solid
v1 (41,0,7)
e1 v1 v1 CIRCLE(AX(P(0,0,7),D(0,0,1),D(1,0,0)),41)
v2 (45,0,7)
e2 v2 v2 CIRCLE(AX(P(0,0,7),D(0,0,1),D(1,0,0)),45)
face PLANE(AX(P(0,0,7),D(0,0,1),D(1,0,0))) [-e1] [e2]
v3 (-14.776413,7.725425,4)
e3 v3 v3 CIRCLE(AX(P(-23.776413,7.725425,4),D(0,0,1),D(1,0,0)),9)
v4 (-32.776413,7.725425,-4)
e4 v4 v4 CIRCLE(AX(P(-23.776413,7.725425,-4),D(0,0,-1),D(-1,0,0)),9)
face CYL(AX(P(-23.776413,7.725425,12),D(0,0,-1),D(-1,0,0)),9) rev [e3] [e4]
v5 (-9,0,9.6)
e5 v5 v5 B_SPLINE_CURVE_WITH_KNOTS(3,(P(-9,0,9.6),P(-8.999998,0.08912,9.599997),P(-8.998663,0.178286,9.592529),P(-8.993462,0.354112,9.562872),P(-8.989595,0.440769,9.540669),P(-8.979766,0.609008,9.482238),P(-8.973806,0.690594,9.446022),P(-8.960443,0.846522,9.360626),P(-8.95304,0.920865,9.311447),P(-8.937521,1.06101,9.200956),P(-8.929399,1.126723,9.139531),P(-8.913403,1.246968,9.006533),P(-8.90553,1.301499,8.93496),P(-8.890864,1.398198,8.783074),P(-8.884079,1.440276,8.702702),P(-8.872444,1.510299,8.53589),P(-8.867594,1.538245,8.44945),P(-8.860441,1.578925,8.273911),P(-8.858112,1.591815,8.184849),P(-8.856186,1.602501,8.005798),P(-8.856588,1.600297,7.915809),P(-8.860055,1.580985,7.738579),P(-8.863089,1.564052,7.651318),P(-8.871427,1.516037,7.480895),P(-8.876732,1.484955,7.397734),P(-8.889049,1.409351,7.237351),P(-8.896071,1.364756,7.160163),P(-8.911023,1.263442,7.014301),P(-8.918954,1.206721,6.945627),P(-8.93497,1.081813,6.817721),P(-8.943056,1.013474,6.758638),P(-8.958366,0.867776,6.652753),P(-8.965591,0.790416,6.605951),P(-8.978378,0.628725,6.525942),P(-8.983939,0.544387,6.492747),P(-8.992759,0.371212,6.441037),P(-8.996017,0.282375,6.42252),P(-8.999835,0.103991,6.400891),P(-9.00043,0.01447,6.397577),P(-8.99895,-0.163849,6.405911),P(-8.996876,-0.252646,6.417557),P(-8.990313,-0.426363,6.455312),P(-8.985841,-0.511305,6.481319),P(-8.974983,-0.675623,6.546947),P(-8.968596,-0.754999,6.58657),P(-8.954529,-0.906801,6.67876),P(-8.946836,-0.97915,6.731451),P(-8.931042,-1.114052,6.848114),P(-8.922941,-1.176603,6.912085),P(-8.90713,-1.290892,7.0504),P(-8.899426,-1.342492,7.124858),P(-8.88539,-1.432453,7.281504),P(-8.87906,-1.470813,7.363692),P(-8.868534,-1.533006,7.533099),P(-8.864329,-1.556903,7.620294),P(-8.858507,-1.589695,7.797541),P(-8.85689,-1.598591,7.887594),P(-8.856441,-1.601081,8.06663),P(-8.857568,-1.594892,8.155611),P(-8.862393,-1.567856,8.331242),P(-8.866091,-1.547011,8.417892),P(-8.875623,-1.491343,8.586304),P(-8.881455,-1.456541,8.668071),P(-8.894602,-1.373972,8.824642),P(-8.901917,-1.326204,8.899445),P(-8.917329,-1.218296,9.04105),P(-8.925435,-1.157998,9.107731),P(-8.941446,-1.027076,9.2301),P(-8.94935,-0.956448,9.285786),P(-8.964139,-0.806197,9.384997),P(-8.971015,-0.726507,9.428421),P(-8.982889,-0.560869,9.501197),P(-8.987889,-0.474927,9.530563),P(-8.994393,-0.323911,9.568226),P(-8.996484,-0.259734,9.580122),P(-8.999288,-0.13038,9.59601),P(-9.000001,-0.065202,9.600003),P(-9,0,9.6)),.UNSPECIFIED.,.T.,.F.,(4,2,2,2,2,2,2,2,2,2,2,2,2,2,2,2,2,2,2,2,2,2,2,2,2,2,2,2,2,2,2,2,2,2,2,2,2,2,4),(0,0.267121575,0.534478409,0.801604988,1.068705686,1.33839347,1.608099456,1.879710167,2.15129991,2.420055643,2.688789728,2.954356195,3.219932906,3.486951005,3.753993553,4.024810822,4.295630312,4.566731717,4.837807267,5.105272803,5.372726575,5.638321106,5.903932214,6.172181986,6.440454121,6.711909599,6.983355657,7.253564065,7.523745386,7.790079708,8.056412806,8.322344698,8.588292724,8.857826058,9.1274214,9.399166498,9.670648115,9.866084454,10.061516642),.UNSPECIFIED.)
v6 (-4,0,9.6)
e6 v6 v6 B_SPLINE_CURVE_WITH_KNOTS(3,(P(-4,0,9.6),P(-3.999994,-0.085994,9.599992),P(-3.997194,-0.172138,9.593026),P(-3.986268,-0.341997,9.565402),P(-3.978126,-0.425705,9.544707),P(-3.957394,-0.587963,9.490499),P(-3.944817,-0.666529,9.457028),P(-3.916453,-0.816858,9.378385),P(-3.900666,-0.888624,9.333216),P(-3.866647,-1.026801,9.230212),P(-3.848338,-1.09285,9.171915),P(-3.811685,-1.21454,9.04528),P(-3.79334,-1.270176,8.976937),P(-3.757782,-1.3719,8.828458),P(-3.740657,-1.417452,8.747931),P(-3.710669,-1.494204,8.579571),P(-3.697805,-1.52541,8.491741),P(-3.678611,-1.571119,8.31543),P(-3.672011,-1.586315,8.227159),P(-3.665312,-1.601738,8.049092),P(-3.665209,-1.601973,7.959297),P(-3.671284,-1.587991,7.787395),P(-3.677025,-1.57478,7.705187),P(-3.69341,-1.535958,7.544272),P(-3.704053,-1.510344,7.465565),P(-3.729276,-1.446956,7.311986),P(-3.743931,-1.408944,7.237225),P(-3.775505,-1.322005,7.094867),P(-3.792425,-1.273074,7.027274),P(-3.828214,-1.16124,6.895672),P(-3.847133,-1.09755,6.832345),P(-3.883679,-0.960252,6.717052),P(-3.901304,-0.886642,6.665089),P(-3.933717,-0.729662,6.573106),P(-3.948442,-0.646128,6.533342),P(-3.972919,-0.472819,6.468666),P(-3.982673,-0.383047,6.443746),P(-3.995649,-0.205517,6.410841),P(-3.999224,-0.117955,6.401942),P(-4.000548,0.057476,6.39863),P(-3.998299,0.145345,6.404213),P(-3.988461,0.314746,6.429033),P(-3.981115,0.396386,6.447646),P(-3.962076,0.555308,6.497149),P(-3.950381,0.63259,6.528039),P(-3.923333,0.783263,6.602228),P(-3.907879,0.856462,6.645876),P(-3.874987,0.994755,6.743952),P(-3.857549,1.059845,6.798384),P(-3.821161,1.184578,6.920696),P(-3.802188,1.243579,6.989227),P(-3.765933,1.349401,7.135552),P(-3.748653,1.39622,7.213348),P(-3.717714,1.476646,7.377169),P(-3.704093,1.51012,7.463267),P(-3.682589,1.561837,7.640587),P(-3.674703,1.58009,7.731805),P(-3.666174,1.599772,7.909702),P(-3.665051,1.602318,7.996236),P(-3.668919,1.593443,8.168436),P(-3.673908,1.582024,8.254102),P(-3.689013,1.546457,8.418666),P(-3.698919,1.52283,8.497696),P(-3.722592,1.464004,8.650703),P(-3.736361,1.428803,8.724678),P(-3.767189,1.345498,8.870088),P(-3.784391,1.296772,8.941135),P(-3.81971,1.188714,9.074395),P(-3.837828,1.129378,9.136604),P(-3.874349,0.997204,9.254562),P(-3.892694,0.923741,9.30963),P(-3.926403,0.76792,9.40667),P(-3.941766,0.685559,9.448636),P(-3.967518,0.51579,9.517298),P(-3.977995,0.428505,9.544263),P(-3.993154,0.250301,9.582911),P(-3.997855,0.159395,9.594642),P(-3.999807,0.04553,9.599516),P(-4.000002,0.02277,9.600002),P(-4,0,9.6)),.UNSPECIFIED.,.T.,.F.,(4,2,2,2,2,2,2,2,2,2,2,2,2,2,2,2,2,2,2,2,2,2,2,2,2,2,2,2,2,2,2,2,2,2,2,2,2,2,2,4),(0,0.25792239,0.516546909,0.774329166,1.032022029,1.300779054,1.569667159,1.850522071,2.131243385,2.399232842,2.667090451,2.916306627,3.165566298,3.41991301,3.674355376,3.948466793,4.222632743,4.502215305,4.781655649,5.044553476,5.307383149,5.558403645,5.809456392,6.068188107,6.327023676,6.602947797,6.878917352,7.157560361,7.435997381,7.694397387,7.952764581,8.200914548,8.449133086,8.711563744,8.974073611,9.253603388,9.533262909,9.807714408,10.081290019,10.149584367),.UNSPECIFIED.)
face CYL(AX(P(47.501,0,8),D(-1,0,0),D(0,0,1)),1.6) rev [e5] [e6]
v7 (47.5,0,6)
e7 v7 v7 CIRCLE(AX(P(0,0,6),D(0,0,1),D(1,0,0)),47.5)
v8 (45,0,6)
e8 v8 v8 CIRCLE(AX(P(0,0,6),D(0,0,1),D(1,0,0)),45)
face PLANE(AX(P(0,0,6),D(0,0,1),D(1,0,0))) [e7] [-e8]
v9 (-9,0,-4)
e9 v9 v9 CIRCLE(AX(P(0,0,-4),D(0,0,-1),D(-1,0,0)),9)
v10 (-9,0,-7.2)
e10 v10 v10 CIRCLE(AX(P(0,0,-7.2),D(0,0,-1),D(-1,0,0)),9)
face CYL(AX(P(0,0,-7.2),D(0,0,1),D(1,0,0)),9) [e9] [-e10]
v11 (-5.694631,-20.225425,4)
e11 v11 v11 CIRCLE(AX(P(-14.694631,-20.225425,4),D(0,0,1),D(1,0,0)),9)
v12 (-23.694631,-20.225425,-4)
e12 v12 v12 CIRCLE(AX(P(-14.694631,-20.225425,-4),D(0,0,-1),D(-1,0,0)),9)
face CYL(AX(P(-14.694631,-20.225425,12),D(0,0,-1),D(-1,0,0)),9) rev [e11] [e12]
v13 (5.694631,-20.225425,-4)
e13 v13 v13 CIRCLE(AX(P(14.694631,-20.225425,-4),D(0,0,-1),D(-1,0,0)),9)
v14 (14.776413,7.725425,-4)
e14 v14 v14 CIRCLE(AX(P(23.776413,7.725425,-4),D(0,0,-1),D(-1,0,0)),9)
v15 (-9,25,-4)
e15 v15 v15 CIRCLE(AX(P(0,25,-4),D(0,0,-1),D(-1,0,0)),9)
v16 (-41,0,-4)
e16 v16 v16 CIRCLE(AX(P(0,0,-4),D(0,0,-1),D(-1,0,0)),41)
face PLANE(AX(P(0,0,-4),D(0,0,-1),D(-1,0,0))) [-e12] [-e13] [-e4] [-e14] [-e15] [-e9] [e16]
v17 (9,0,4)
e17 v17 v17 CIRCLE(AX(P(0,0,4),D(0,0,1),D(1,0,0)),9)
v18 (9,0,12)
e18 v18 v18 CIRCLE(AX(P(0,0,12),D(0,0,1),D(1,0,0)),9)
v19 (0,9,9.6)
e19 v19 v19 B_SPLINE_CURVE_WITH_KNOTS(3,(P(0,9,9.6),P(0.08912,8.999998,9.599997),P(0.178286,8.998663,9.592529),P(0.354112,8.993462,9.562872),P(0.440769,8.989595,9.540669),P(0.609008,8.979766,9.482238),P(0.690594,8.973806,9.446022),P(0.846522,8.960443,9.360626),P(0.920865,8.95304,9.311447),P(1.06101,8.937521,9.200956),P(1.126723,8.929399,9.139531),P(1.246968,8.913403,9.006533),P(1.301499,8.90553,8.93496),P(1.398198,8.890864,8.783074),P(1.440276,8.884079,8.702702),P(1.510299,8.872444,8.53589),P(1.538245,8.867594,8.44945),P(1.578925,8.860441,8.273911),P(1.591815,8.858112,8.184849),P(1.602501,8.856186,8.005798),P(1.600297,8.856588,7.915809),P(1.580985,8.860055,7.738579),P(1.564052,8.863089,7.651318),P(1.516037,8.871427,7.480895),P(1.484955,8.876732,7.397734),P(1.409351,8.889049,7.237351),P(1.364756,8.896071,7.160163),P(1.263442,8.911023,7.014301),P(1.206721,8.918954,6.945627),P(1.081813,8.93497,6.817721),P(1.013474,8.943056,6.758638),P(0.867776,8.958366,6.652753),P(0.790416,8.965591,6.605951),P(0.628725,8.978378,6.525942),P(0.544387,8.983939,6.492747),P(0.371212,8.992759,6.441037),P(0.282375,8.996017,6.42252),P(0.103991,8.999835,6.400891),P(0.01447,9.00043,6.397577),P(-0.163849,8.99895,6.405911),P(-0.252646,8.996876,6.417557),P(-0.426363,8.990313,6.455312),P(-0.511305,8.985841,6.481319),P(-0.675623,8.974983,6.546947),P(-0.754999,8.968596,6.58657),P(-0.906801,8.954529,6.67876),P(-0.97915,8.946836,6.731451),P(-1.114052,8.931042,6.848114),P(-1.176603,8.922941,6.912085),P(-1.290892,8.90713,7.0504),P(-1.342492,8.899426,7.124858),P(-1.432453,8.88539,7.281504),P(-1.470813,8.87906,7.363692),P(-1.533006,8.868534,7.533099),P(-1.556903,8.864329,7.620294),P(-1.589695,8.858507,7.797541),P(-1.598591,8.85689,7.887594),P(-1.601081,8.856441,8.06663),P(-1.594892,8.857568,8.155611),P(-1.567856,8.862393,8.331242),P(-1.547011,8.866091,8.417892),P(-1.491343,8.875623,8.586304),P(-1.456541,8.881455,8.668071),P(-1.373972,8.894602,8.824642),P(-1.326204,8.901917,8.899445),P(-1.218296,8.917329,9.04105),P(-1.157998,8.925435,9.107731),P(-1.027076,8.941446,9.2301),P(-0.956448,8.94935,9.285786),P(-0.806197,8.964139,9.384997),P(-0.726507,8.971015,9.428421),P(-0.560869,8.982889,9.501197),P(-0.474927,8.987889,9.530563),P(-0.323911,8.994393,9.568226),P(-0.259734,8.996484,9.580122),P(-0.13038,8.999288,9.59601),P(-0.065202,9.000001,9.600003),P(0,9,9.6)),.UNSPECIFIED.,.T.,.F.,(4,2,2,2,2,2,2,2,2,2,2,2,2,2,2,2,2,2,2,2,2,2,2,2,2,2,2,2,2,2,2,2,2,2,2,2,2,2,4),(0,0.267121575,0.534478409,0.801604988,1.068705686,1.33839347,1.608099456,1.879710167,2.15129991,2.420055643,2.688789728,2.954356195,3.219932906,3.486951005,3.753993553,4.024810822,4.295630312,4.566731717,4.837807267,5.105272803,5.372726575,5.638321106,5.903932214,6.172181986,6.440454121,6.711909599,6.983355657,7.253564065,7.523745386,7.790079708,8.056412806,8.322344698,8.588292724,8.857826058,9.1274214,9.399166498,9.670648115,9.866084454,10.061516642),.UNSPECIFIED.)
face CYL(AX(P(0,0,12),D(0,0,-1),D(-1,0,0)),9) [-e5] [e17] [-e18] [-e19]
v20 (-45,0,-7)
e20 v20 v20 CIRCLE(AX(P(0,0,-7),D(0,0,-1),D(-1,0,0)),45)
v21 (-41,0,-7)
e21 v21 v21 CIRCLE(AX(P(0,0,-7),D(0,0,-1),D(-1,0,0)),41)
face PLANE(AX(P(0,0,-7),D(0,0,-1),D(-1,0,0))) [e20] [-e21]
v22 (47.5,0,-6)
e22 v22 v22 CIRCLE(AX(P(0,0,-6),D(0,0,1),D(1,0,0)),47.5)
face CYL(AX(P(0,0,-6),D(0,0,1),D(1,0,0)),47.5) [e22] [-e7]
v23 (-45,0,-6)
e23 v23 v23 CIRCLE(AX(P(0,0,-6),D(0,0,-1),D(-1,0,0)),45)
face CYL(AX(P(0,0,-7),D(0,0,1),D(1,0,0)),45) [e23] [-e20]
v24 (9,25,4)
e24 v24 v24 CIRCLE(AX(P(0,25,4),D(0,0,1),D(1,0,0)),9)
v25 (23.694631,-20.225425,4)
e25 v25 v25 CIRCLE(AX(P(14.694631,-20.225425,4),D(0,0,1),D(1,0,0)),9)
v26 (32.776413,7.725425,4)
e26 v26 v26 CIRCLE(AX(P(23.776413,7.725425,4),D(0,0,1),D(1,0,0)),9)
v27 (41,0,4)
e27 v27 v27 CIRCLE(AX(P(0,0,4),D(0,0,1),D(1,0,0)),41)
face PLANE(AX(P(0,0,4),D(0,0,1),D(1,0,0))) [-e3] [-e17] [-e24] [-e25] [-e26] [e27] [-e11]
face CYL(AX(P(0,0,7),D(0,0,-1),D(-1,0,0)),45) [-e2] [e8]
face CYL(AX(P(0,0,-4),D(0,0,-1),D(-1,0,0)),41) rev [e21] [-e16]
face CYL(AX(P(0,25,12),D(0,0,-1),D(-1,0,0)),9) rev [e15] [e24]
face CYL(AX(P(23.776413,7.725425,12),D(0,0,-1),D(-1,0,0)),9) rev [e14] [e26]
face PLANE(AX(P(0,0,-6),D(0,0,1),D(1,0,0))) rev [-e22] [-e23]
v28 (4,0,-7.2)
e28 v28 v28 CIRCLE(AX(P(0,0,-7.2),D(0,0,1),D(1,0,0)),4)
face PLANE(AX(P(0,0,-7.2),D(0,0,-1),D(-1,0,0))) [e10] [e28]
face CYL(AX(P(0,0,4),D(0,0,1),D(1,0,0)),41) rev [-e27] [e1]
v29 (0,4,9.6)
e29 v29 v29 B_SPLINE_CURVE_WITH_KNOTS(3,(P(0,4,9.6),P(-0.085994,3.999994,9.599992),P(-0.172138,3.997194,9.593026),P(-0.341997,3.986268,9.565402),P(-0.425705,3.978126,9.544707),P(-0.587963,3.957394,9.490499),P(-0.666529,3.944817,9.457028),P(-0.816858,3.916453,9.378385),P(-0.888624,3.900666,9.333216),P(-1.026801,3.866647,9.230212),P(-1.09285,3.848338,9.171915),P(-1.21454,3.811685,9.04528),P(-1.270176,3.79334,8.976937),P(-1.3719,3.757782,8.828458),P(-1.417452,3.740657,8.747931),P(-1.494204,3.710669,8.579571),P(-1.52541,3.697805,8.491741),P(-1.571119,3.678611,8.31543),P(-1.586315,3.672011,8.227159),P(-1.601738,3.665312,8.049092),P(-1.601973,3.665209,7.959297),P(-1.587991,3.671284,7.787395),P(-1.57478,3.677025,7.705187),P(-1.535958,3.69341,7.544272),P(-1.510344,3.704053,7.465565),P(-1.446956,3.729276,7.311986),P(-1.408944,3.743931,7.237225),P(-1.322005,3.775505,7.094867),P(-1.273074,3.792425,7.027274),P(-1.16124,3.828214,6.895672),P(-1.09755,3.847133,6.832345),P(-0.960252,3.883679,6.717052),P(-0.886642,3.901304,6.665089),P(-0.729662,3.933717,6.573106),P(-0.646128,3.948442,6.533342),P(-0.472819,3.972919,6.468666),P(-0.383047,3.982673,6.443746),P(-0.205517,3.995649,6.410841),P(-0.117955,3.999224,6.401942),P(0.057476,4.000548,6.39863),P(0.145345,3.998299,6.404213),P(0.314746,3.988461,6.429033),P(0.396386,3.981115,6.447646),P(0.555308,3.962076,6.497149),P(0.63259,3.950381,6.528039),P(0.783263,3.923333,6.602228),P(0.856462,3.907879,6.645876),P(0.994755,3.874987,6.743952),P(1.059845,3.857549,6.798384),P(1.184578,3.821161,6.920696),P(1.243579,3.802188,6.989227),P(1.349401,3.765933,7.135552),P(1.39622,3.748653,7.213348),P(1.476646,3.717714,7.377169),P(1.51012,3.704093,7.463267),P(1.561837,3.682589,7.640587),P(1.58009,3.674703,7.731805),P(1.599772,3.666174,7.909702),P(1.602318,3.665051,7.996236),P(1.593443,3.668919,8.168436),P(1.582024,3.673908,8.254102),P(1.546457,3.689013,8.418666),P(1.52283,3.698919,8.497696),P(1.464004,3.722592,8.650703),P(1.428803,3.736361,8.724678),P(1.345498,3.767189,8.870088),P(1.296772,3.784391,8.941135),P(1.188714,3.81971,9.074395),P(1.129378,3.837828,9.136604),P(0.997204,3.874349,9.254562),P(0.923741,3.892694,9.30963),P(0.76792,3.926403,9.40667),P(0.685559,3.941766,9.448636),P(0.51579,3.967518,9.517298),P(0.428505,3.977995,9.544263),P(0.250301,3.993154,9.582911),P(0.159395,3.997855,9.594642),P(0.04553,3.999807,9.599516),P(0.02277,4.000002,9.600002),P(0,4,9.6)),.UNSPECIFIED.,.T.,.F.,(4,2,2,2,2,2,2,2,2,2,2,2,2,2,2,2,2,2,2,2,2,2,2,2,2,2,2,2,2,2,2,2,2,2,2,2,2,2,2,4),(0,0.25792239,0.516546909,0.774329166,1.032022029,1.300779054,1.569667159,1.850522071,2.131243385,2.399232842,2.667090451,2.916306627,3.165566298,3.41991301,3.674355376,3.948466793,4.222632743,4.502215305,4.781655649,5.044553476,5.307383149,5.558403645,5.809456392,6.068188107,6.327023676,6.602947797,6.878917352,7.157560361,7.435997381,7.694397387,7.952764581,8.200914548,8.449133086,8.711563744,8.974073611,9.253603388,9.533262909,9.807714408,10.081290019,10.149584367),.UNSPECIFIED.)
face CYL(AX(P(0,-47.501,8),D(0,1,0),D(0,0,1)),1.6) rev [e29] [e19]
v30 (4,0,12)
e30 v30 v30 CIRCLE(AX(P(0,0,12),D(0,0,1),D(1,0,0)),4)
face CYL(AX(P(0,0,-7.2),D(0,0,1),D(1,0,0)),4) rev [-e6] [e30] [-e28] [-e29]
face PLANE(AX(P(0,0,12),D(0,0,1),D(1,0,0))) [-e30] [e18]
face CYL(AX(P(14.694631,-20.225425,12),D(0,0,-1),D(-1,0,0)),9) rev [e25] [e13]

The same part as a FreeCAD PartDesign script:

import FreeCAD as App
import Part
import Sketcher

doc = App.newDocument("Part")
body = doc.addObject("PartDesign::Body", "Body")

sketch1 = body.newObject("Sketcher::SketchObject", "Sketch")
sketch1.AttachmentSupport = (doc.getObject("XY_Plane"), [""])
sketch1.MapMode = "FlatFace"
sketch1.addGeometry(Part.Circle(App.Vector(0, 0, 0), App.Vector(0, 0, 1), 48), False)
sketch1.addConstraint([
    Sketcher.Constraint("Coincident", 0, 3, -1, 1),
    Sketcher.Constraint("Diameter", 0, 95.0),
])
pad1 = body.newObject("PartDesign::Pad", "Pad")
pad1.Profile = sketch1
pad1.Type = "TwoLengths"
pad1.Length = 6
pad1.Length2 = 6

sketch2 = body.newObject("Sketcher::SketchObject", "Sketch001")
sketch2.AttachmentSupport = (doc.getObject("XY_Plane"), [""])
sketch2.MapMode = "FlatFace"
sketch2.AttachmentOffset = App.Placement(App.Vector(0, 0, 6), App.Rotation())
sketch2.addGeometry(Part.Circle(App.Vector(0, 0, 0), App.Vector(0, 0, 1), 45), False)
sketch2.addConstraint([
    Sketcher.Constraint("Coincident", 0, 3, -1, 1),
    Sketcher.Constraint("Diameter", 0, 90.0),
])
pad2 = body.newObject("PartDesign::Pad", "Pad001")
pad2.Profile = sketch2
pad2.Length = 1

sketch3 = body.newObject("Sketcher::SketchObject", "Sketch002")
sketch3.AttachmentSupport = (doc.getObject("XY_Plane"), [""])
sketch3.MapMode = "FlatFace"
sketch3.AttachmentOffset = App.Placement(App.Vector(0, 0, -6), App.Rotation())
sketch3.addGeometry(Part.Circle(App.Vector(0, 0, 0), App.Vector(0, 0, 1), 45), False)
sketch3.addConstraint([
    Sketcher.Constraint("Coincident", 0, 3, -1, 1),
    Sketcher.Constraint("Diameter", 0, 90.0),
])
pad3 = body.newObject("PartDesign::Pad", "Pad002")
pad3.Profile = sketch3
pad3.Length = 1
pad3.Reversed = True

sketch4 = body.newObject("Sketcher::SketchObject", "Sketch003")
sketch4.AttachmentSupport = (doc.getObject("XY_Plane"), [""])
sketch4.MapMode = "FlatFace"
sketch4.AttachmentOffset = App.Placement(App.Vector(0, 0, -7), App.Rotation())
sketch4.addGeometry(Part.Circle(App.Vector(0, 0, 0), App.Vector(0, 0, 1), 9), False)
sketch4.addConstraint([
    Sketcher.Constraint("Coincident", 0, 3, -1, 1),
    Sketcher.Constraint("Diameter", 0, 18.0),
])
pad4 = body.newObject("PartDesign::Pad", "Pad003")
pad4.Profile = sketch4
pad4.Length = 0.2
pad4.Reversed = True

sketch5 = body.newObject("Sketcher::SketchObject", "Sketch004")
sketch5.AttachmentSupport = (doc.getObject("XY_Plane"), [""])
sketch5.MapMode = "FlatFace"
sketch5.AttachmentOffset = App.Placement(App.Vector(0, 0, 7), App.Rotation())
sketch5.addGeometry(Part.Circle(App.Vector(0, 0, 0), App.Vector(0, 0, 1), 9), False)
sketch5.addConstraint([
    Sketcher.Constraint("Coincident", 0, 3, -1, 1),
    Sketcher.Constraint("Diameter", 0, 18.0),
])
pad5 = body.newObject("PartDesign::Pad", "Pad004")
pad5.Profile = sketch5
pad5.Length = 5

sketch6 = body.newObject("Sketcher::SketchObject", "Sketch005")
sketch6.AttachmentSupport = (doc.getObject("XY_Plane"), [""])
sketch6.MapMode = "FlatFace"
sketch6.AttachmentOffset = App.Placement(App.Vector(0, 0, 7), App.Rotation())
sketch6.addGeometry([
    Part.Circle(App.Vector(0, 0, 0), App.Vector(0, 0, 1), 41),
    Part.Circle(App.Vector(0, 0, 0), App.Vector(0, 0, 1), 9),
], False)
sketch6.addConstraint([
    Sketcher.Constraint("Coincident", 0, 3, -1, 1),
    Sketcher.Constraint("Coincident", 1, 3, -1, 1),
    Sketcher.Constraint("Diameter", 0, 82.0),
    Sketcher.Constraint("Diameter", 1, 18.0),
])
pocket1 = body.newObject("PartDesign::Pocket", "Pocket")
pocket1.Profile = sketch6
pocket1.Length = 3

sketch7 = body.newObject("Sketcher::SketchObject", "Sketch006")
sketch7.AttachmentSupport = (doc.getObject("XY_Plane"), [""])
sketch7.MapMode = "FlatFace"
sketch7.AttachmentOffset = App.Placement(App.Vector(0, 0, -7), App.Rotation())
sketch7.addGeometry([
    Part.Circle(App.Vector(0, 0, 0), App.Vector(0, 0, 1), 41),
    Part.Circle(App.Vector(0, 0, 0), App.Vector(0, 0, 1), 9),
], False)
sketch7.addConstraint([
    Sketcher.Constraint("Coincident", 0, 3, -1, 1),
    Sketcher.Constraint("Coincident", 1, 3, -1, 1),
    Sketcher.Constraint("Diameter", 0, 82.0),
    Sketcher.Constraint("Diameter", 1, 18.0),
])
pocket2 = body.newObject("PartDesign::Pocket", "Pocket001")
pocket2.Profile = sketch7
pocket2.Length = 3
pocket2.Reversed = True

sketch8 = body.newObject("Sketcher::SketchObject", "Sketch007")
sketch8.AttachmentSupport = (doc.getObject("XY_Plane"), [""])
sketch8.MapMode = "FlatFace"
sketch8.AttachmentOffset = App.Placement(App.Vector(0, 0, -4), App.Rotation())
sketch8.addGeometry([
    Part.Circle(App.Vector(0, 25, 0), App.Vector(0, 0, 1), 9),
    Part.Circle(App.Vector(-24, 8, 0), App.Vector(0, 0, 1), 9),
    Part.Circle(App.Vector(-15, -20, 0), App.Vector(0, 0, 1), 9),
    Part.Circle(App.Vector(15, -20, 0), App.Vector(0, 0, 1), 9),
    Part.Circle(App.Vector(24, 8, 0), App.Vector(0, 0, 1), 9),
], False)
sketch8.addConstraint([
    Sketcher.Constraint("Equal", 0, 1),
    Sketcher.Constraint("Equal", 1, 2),
    Sketcher.Constraint("Equal", 2, 3),
    Sketcher.Constraint("Equal", 3, 4),
    Sketcher.Constraint("Symmetric", 2, 3, 3, 3, -2),
    Sketcher.Constraint("Symmetric", 1, 3, 4, 3, -2),
    Sketcher.Constraint("PointOnObject", 0, 3, -2),
    Sketcher.Constraint("Diameter", 0, 18.0),
    Sketcher.Constraint("DistanceY", -1, 1, 0, 3, 25.0),
    Sketcher.Constraint("DistanceX", 2, 3, -1, 1, 14.694631),
    Sketcher.Constraint("DistanceX", 1, 3, 2, 3, 9.081782),
    Sketcher.Constraint("DistanceY", 2, 3, 1, 3, 27.95085),
    Sketcher.Constraint("DistanceY", -1, 1, 1, 3, 7.725425),
])
pocket3 = body.newObject("PartDesign::Pocket", "Pocket002")
pocket3.Profile = sketch8
pocket3.Type = "ThroughAll"
pocket3.Reversed = True

sketch9 = body.newObject("Sketcher::SketchObject", "Sketch008")
sketch9.AttachmentSupport = (doc.getObject("XY_Plane"), [""])
sketch9.MapMode = "FlatFace"
sketch9.AttachmentOffset = App.Placement(App.Vector(0, 0, 12), App.Rotation())
sketch9.addGeometry(Part.Circle(App.Vector(0, 0, 0), App.Vector(0, 0, 1), 4), False)
sketch9.addConstraint([
    Sketcher.Constraint("Coincident", 0, 3, -1, 1),
    Sketcher.Constraint("Diameter", 0, 8.0),
])
pocket4 = body.newObject("PartDesign::Pocket", "Pocket003")
pocket4.Profile = sketch9
pocket4.Type = "ThroughAll"

sketch10 = body.newObject("Sketcher::SketchObject", "Sketch009")
sketch10.AttachmentSupport = (doc.getObject("YZ_Plane"), [""])
sketch10.MapMode = "FlatFace"
sketch10.AttachmentOffset = App.Placement(App.Vector(0, 0, -9), App.Rotation())
sketch10.addGeometry(Part.Circle(App.Vector(0, 8, 0), App.Vector(0, 0, 1), 1.6), False)
sketch10.addConstraint([
    Sketcher.Constraint("PointOnObject", 0, 3, -2),
    Sketcher.Constraint("Diameter", 0, 3.2),
    Sketcher.Constraint("DistanceY", -1, 1, 0, 3, 8.0),
])
pocket5 = body.newObject("PartDesign::Pocket", "Pocket004")
pocket5.Profile = sketch10
pocket5.Type = "UpToFirst"
pocket5.Reversed = True

sketch11 = body.newObject("Sketcher::SketchObject", "Sketch010")
sketch11.AttachmentSupport = (doc.getObject("XZ_Plane"), [""])
sketch11.MapMode = "FlatFace"
sketch11.AttachmentOffset = App.Placement(App.Vector(0, 0, -9), App.Rotation())
sketch11.addGeometry(Part.Circle(App.Vector(0, 8, 0), App.Vector(0, 0, 1), 1.6), False)
sketch11.addConstraint([
    Sketcher.Constraint("PointOnObject", 0, 3, -2),
    Sketcher.Constraint("Diameter", 0, 3.2),
    Sketcher.Constraint("DistanceY", -1, 1, 0, 3, 8.0),
])
pocket6 = body.newObject("PartDesign::Pocket", "Pocket005")
pocket6.Profile = sketch11
pocket6.Type = "UpToFirst"
pocket6.Reversed = True

doc.recompute()
